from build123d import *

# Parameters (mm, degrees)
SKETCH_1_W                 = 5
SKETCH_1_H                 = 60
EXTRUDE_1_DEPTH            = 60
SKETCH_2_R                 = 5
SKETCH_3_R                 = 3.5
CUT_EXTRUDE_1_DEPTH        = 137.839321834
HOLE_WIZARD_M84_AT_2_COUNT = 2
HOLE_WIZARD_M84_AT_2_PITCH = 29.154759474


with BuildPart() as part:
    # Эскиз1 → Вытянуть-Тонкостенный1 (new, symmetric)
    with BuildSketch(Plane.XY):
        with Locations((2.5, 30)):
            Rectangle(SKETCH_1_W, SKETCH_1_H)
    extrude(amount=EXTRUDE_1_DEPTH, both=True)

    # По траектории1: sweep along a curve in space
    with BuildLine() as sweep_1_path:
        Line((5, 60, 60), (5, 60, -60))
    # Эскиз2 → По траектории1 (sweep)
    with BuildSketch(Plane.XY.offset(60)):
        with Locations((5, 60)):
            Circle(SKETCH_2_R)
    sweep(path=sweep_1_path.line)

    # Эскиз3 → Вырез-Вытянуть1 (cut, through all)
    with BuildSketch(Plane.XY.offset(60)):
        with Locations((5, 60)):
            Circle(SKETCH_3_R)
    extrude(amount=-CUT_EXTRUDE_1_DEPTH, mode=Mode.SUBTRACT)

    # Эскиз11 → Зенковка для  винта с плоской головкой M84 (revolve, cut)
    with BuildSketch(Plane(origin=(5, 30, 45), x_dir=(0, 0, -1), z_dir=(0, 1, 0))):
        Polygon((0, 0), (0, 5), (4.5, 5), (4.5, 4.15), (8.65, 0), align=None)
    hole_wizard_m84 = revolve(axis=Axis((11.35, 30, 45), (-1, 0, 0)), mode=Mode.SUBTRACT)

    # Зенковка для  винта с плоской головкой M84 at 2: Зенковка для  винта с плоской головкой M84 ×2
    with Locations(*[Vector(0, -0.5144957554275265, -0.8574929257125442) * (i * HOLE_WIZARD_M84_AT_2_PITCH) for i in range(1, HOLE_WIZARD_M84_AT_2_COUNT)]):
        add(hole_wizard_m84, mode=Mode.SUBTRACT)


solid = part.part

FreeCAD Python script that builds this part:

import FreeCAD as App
import Part
import Sketcher

V = App.Vector
Q = App.Units.Quantity


def add_polygon(sketch, points):
    """Adds a closed chain of lines whose ends are joined by coincident constraints."""
    first, n = sketch.GeometryCount, len(points)
    for a, b in zip(points, points[1:] + points[:1]):
        sketch.addGeometry(Part.LineSegment(App.Vector(*a, 0), App.Vector(*b, 0)), False)
    for i in range(n):
        sketch.addConstraint(Sketcher.Constraint("Coincident", first + i, 2, first + (i + 1) % n, 1))

doc = App.newDocument("Part")
params = doc.addObject("Spreadsheet::Sheet", "Params")
for row, (alias, value) in enumerate([
    ("sketch1_width", "5 mm"),
    ("sketch1_height", "60 mm"),
    ("pad1_length", "120 mm"),
    ("sketch2_diameter", "10 mm"),
    ("sketch3_height", "120 mm"),
    ("sketch4_diameter", "7 mm"),
    ("sketch5_width", "5 mm"),
    ("sketch5_height", "4.5 mm"),
    ("sketch5_width2", "0.85 mm"),
    ("groove_angle", "360 deg"),
    ("linearpattern_pitch", "29.154759 mm"),
], start=1):
    params.set(f"A{row}", alias)
    params.set(f"B{row}", "=" + value)
    params.setAlias(f"B{row}", alias)

body = doc.addObject("PartDesign::Body", "Body")

# Sketch on XY plane
sketch1 = body.newObject("Sketcher::SketchObject", "Sketch")
sketch1.AttachmentSupport = (doc.getObject("XY_Plane"), [""])
sketch1.MapMode = "FlatFace"
add_polygon(sketch1, [(0, 60), (0, 0), (5, 0), (5, 60)])  # lines 0-3
sketch1.addConstraint([
    Sketcher.Constraint("Vertical", 0),
    Sketcher.Constraint("Horizontal", 1),
    Sketcher.Constraint("Vertical", 2),
    Sketcher.Constraint("Horizontal", 3),
    Sketcher.Constraint("Coincident", 0, 2, -1, 1),
    Sketcher.Constraint("DistanceX", 1, 1, 1, 2, Q("5 mm")),
    Sketcher.Constraint("DistanceY", 0, 2, 0, 1, Q("60 mm")),
])
sketch1.setExpression("Constraints[9]", "Params.sketch1_width")
sketch1.setExpression("Constraints[10]", "Params.sketch1_height")
pad1 = body.newObject("PartDesign::Pad", "Pad")
pad1.Profile = sketch1
pad1.setExpression("Length", "Params.pad1_length")
pad1.Midplane = True

# Sketch on XY plane
sketch2 = body.newObject("Sketcher::SketchObject", "Sketch001")
sketch2.AttachmentSupport = (doc.getObject("XY_Plane"), [""])
sketch2.MapMode = "FlatFace"
sketch2.AttachmentOffset = App.Placement(V(0, 0, 60), App.Rotation())
sketch2.addGeometry(Part.Circle(V(5, 60, 0), V(0, 0, 1), 5), False)
sketch2.addConstraint([
    Sketcher.Constraint("Diameter", 0, Q("10 mm")),
    Sketcher.Constraint("DistanceX", -1, 1, 0, 3, Q("5 mm")),
    Sketcher.Constraint("DistanceY", -1, 1, 0, 3, Q("60 mm")),
])
sketch2.setExpression("Constraints[0]", "Params.sketch2_diameter")

# Sketch on XZ plane
sketch3 = body.newObject("Sketcher::SketchObject", "Sketch002")
sketch3.AttachmentSupport = (doc.getObject("XZ_Plane"), [""])
sketch3.MapMode = "FlatFace"
sketch3.AttachmentOffset = App.Placement(V(0, 0, -60), App.Rotation())
sketch3.addGeometry(Part.LineSegment(V(5, 60, 0), V(5, -60, 0)), False)
sketch3.addConstraint([
    Sketcher.Constraint("Vertical", 0),
    Sketcher.Constraint("DistanceY", 0, 2, 0, 1, Q("120 mm")),
    Sketcher.Constraint("DistanceX", -1, 1, 0, 1, Q("5 mm")),
    Sketcher.Constraint("DistanceY", -1, 1, 0, 1, Q("60 mm")),
])
sketch3.setExpression("Constraints[1]", "Params.sketch3_height")
doc.recompute()

additivepipe = body.newObject("PartDesign::AdditivePipe", "AdditivePipe")
additivepipe.Profile = sketch2
additivepipe.Spine = (sketch3, ["Edge1"])

# Sketch on XY plane
sketch4 = body.newObject("Sketcher::SketchObject", "Sketch003")
sketch4.AttachmentSupport = (doc.getObject("XY_Plane"), [""])
sketch4.MapMode = "FlatFace"
sketch4.AttachmentOffset = App.Placement(V(0, 0, 60), App.Rotation())
sketch4.addGeometry(Part.Circle(V(5, 60, 0), V(0, 0, 1), 3.5), False)
sketch4.addConstraint([
    Sketcher.Constraint("Diameter", 0, Q("7 mm")),
    Sketcher.Constraint("DistanceX", -1, 1, 0, 3, Q("5 mm")),
    Sketcher.Constraint("DistanceY", -1, 1, 0, 3, Q("60 mm")),
])
sketch4.setExpression("Constraints[0]", "Params.sketch4_diameter")
pocket1 = body.newObject("PartDesign::Pocket", "Pocket")
pocket1.Profile = sketch4
pocket1.Type = "ThroughAll"

# Sketch on XZ plane
sketch5 = body.newObject("Sketcher::SketchObject", "Sketch004")
sketch5.AttachmentSupport = (doc.getObject("XZ_Plane"), [""])
sketch5.MapMode = "FlatFace"
sketch5.AttachmentOffset = App.Placement(V(0, 0, -30), App.Rotation())
add_polygon(sketch5, [(0, 45), (5, 45), (5, 36.4), (0.8, 40.5), (0, 40.5)])  # lines 0-4
sketch5.addGeometry(Part.LineSegment(V(5, 45, 0), V(0, 45, 0)), True)  # axis
sketch5.addConstraint([
    Sketcher.Constraint("Horizontal", 0),
    Sketcher.Constraint("Vertical", 1),
    Sketcher.Constraint("Horizontal", 3),
    Sketcher.Constraint("Vertical", 4),
    Sketcher.Constraint("Horizontal", 5),
    Sketcher.Constraint("Coincident", 5, 1, 0, 2),
    Sketcher.Constraint("PointOnObject", 3, 2, -2),
    Sketcher.Constraint("PointOnObject", 5, 2, -2),
    Sketcher.Constraint("DistanceX", 0, 1, 0, 2, Q("5 mm")),
    Sketcher.Constraint("Angle", 2, Q("135 deg")),
    Sketcher.Constraint("DistanceY", 4, 1, 4, 2, Q("4.5 mm")),
    Sketcher.Constraint("DistanceY", -1, 1, 0, 2, Q("45 mm")),
    Sketcher.Constraint("DistanceX", 3, 2, 3, 1, Q("0.85 mm")),
])
sketch5.setExpression("Constraints[13]", "Params.sketch5_width")
sketch5.setExpression("Constraints[15]", "Params.sketch5_height")
sketch5.setExpression("Constraints[17]", "Params.sketch5_width2")
groove = body.newObject("PartDesign::Groove", "Groove")
groove.Profile = sketch5
groove.ReferenceAxis = (sketch5, ["Axis0"])
groove.setExpression("Angle", "Params.groove_angle")
doc.recompute()

datumline = body.newObject("PartDesign::Line", "DatumLine")
datumline.Placement = App.Placement(V(0, 0, 0), App.Rotation(V(0, 0, 1), V(0, -0.514495755, -0.857492926)))
linearpattern = body.newObject("PartDesign::LinearPattern", "LinearPattern")
linearpattern.Originals = [groove]
linearpattern.Direction = (datumline, [""])
linearpattern.Mode = "offset"
linearpattern.setExpression("Offset", "Params.linearpattern_pitch")
linearpattern.Occurrences = 2
body.Tip = linearpattern

doc.recompute()
